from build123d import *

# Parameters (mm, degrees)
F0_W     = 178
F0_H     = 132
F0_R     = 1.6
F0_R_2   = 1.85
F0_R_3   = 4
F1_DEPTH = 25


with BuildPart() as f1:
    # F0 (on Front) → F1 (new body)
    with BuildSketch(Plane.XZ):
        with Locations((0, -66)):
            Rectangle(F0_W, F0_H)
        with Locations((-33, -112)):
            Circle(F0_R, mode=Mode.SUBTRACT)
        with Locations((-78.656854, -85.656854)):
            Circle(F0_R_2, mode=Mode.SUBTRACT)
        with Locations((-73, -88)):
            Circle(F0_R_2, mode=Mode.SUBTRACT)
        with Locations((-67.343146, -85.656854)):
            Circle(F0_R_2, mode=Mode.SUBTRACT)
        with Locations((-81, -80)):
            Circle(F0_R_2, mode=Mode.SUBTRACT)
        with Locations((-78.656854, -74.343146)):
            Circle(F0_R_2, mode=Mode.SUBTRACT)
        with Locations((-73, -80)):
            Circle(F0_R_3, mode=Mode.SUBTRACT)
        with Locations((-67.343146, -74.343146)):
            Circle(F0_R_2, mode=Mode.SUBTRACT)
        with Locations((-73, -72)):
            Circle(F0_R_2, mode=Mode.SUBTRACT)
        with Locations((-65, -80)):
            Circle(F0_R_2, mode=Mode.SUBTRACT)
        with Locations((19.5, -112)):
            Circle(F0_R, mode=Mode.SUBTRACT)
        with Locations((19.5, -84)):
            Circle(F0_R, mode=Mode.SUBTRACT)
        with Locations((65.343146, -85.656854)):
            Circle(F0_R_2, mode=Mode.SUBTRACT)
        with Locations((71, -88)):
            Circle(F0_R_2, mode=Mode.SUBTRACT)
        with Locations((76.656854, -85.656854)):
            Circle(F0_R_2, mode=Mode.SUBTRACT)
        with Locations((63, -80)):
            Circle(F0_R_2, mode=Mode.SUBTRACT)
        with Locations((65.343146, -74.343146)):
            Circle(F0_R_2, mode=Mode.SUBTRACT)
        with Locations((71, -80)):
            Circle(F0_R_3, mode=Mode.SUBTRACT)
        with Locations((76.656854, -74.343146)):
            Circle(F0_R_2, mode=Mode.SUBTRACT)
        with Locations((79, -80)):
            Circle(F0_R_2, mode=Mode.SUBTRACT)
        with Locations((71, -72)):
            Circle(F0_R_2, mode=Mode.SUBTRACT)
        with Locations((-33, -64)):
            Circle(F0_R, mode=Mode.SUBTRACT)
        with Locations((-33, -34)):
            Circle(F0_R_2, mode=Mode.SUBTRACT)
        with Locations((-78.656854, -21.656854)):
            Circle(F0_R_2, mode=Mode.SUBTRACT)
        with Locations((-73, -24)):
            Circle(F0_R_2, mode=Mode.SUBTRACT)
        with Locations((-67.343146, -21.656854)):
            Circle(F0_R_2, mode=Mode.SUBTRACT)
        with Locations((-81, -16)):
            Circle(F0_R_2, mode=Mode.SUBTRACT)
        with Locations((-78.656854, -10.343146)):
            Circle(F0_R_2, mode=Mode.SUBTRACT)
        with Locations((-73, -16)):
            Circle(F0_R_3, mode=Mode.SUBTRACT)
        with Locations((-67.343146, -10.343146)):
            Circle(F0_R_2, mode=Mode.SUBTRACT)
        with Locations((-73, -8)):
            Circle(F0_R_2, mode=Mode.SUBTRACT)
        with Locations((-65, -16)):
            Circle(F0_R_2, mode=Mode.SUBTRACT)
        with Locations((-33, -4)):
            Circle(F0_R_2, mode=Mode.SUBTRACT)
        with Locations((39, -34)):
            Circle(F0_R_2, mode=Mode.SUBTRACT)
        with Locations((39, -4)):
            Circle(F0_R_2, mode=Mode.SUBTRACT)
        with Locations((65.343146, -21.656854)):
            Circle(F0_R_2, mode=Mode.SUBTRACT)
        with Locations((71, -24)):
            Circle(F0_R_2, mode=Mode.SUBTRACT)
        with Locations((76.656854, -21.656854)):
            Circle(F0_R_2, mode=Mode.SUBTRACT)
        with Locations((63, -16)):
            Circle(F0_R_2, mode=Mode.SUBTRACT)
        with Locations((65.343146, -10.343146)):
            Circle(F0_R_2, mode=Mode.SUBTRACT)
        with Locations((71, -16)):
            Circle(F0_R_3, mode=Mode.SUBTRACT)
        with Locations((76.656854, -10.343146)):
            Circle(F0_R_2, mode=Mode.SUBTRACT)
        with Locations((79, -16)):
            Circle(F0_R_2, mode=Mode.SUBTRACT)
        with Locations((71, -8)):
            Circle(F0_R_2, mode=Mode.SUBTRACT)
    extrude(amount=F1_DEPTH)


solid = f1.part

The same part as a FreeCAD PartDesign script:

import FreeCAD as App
import Part
import Sketcher
from FreeCAD import Vector
Q = App.Units.Quantity


def add_polygon(sketch, points):
    """Adds a closed chain of lines whose ends are joined by coincident constraints."""
    first, n = sketch.GeometryCount, len(points)
    for a, b in zip(points, points[1:] + points[:1]):
        sketch.addGeometry(Part.LineSegment(App.Vector(*a, 0), App.Vector(*b, 0)), False)
    for i in range(n):
        sketch.addConstraint(Sketcher.Constraint("Coincident", first + i, 2, first + (i + 1) % n, 1))

doc = App.newDocument("Part")
body = doc.addObject("PartDesign::Body", "Body")

# Sketch on XZ plane
sketch1 = doc.addObject("Sketcher::SketchObject", "Sketch")
body.addObject(sketch1)
sketch1.AttachmentSupport = (doc.XZ_Plane, [""])
sketch1.MapMode = "FlatFace"
add_polygon(sketch1, [(-89, 0), (-89, -132), (89, -132), (89, 0)])  # lines 0-3
sketch1.addGeometry(Part.Circle(Vector(-73, -88, 0), Vector(0, 0, 1), 1.9), False)  # 4
sketch1.addGeometry(Part.Circle(Vector(-33, -112, 0), Vector(0, 0, 1), 1.6), False)  # 5
sketch1.addGeometry(Part.Circle(Vector(-78.7, -85.7, 0), Vector(0, 0, 1), 1.9), False)  # 6
sketch1.addGeometry(Part.Circle(Vector(-81, -80, 0), Vector(0, 0, 1), 1.9), False)  # 7
sketch1.addGeometry(Part.Circle(Vector(-73, -80, 0), Vector(0, 0, 1), 4), False)  # 8
sketch1.addGeometry(Part.Circle(Vector(-67.3, -85.7, 0), Vector(0, 0, 1), 1.9), False)  # 9
sketch1.addGeometry(Part.Circle(Vector(-65, -80, 0), Vector(0, 0, 1), 1.9), False)  # 10
sketch1.addGeometry(Part.Circle(Vector(-78.7, -74.3, 0), Vector(0, 0, 1), 1.9), False)  # 11
sketch1.addGeometry(Part.Circle(Vector(-73, -72, 0), Vector(0, 0, 1), 1.9), False)  # 12
sketch1.addGeometry(Part.Circle(Vector(-67.3, -74.3, 0), Vector(0, 0, 1), 1.9), False)  # 13
sketch1.addGeometry(Part.Circle(Vector(-33, -64, 0), Vector(0, 0, 1), 1.6), False)  # 14
sketch1.addGeometry(Part.Circle(Vector(19.5, -112, 0), Vector(0, 0, 1), 1.6), False)  # 15
sketch1.addGeometry(Part.Circle(Vector(71, -88, 0), Vector(0, 0, 1), 1.9), False)  # 16
sketch1.addGeometry(Part.Circle(Vector(19.5, -84, 0), Vector(0, 0, 1), 1.6), False)  # 17
sketch1.addGeometry(Part.Circle(Vector(65.3, -85.7, 0), Vector(0, 0, 1), 1.9), False)  # 18
sketch1.addGeometry(Part.Circle(Vector(63, -80, 0), Vector(0, 0, 1), 1.9), False)  # 19
sketch1.addGeometry(Part.Circle(Vector(76.7, -85.7, 0), Vector(0, 0, 1), 1.9), False)  # 20
sketch1.addGeometry(Part.Circle(Vector(71, -80, 0), Vector(0, 0, 1), 4), False)  # 21
sketch1.addGeometry(Part.Circle(Vector(79, -80, 0), Vector(0, 0, 1), 1.9), False)  # 22
sketch1.addGeometry(Part.Circle(Vector(65.3, -74.3, 0), Vector(0, 0, 1), 1.9), False)  # 23
sketch1.addGeometry(Part.Circle(Vector(71, -72, 0), Vector(0, 0, 1), 1.9), False)  # 24
sketch1.addGeometry(Part.Circle(Vector(76.7, -74.3, 0), Vector(0, 0, 1), 1.9), False)  # 25
sketch1.addGeometry(Part.Circle(Vector(-33, -34, 0), Vector(0, 0, 1), 1.9), False)  # 26
sketch1.addGeometry(Part.Circle(Vector(-73, -24, 0), Vector(0, 0, 1), 1.9), False)  # 27
sketch1.addGeometry(Part.Circle(Vector(-78.7, -21.7, 0), Vector(0, 0, 1), 1.9), False)  # 28
sketch1.addGeometry(Part.Circle(Vector(-67.3, -21.7, 0), Vector(0, 0, 1), 1.9), False)  # 29
sketch1.addGeometry(Part.Circle(Vector(-81, -16, 0), Vector(0, 0, 1), 1.9), False)  # 30
sketch1.addGeometry(Part.Circle(Vector(-73, -16, 0), Vector(0, 0, 1), 4), False)  # 31
sketch1.addGeometry(Part.Circle(Vector(-78.7, -10.3, 0), Vector(0, 0, 1), 1.9), False)  # 32
sketch1.addGeometry(Part.Circle(Vector(-65, -16, 0), Vector(0, 0, 1), 1.9), False)  # 33
sketch1.addGeometry(Part.Circle(Vector(-67.3, -10.3, 0), Vector(0, 0, 1), 1.9), False)  # 34
sketch1.addGeometry(Part.Circle(Vector(-73, -8, 0), Vector(0, 0, 1), 1.9), False)  # 35
sketch1.addGeometry(Part.Circle(Vector(-33, -4, 0), Vector(0, 0, 1), 1.9), False)  # 36
sketch1.addGeometry(Part.Circle(Vector(39, -34, 0), Vector(0, 0, 1), 1.9), False)  # 37
sketch1.addGeometry(Part.Circle(Vector(39, -4, 0), Vector(0, 0, 1), 1.9), False)  # 38
sketch1.addGeometry(Part.Circle(Vector(71, -24, 0), Vector(0, 0, 1), 1.9), False)  # 39
sketch1.addGeometry(Part.Circle(Vector(65.3, -21.7, 0), Vector(0, 0, 1), 1.9), False)  # 40
sketch1.addGeometry(Part.Circle(Vector(76.7, -21.7, 0), Vector(0, 0, 1), 1.9), False)  # 41
sketch1.addGeometry(Part.Circle(Vector(63, -16, 0), Vector(0, 0, 1), 1.9), False)  # 42
sketch1.addGeometry(Part.Circle(Vector(65.3, -10.3, 0), Vector(0, 0, 1), 1.9), False)  # 43
sketch1.addGeometry(Part.Circle(Vector(71, -16, 0), Vector(0, 0, 1), 4), False)  # 44
sketch1.addGeometry(Part.Circle(Vector(79, -16, 0), Vector(0, 0, 1), 1.9), False)  # 45
sketch1.addGeometry(Part.Circle(Vector(76.7, -10.3, 0), Vector(0, 0, 1), 1.9), False)  # 46
sketch1.addGeometry(Part.Circle(Vector(71, -8, 0), Vector(0, 0, 1), 1.9), False)  # 47
sketch1.addConstraint([
    Sketcher.Constraint("Vertical", 0),
    Sketcher.Constraint("Horizontal", 1),
    Sketcher.Constraint("Vertical", 2),
    Sketcher.Constraint("Horizontal", 3),
    Sketcher.Constraint("Equal", 4, 6),
    Sketcher.Constraint("Equal", 6, 7),
    Sketcher.Constraint("Equal", 7, 9),
    Sketcher.Constraint("Equal", 9, 10),
    Sketcher.Constraint("Equal", 10, 11),
    Sketcher.Constraint("Equal", 11, 12),
    Sketcher.Constraint("Equal", 12, 13),
    Sketcher.Constraint("Equal", 5, 14),
    Sketcher.Constraint("Equal", 14, 15),
    Sketcher.Constraint("Equal", 13, 16),
    Sketcher.Constraint("Equal", 15, 17),
    Sketcher.Constraint("Equal", 16, 18),
    Sketcher.Constraint("Equal", 18, 19),
    Sketcher.Constraint("Equal", 19, 20),
    Sketcher.Constraint("Equal", 8, 21),
    Sketcher.Constraint("Equal", 20, 22),
    Sketcher.Constraint("Equal", 22, 23),
    Sketcher.Constraint("Equal", 23, 24),
    Sketcher.Constraint("Equal", 24, 25),
    Sketcher.Constraint("Equal", 25, 26),
    Sketcher.Constraint("Equal", 26, 27),
    Sketcher.Constraint("Equal", 27, 28),
    Sketcher.Constraint("Equal", 28, 29),
    Sketcher.Constraint("Equal", 29, 30),
    Sketcher.Constraint("Equal", 21, 31),
    Sketcher.Constraint("Equal", 30, 32),
    Sketcher.Constraint("Equal", 32, 33),
    Sketcher.Constraint("Equal", 33, 34),
    Sketcher.Constraint("Equal", 34, 35),
    Sketcher.Constraint("Equal", 35, 36),
    Sketcher.Constraint("Equal", 36, 37),
    Sketcher.Constraint("Equal", 37, 38),
    Sketcher.Constraint("Equal", 38, 39),
    Sketcher.Constraint("Equal", 39, 40),
    Sketcher.Constraint("Equal", 40, 41),
    Sketcher.Constraint("Equal", 41, 42),
    Sketcher.Constraint("Equal", 42, 43),
    Sketcher.Constraint("Equal", 31, 44),
    Sketcher.Constraint("Equal", 43, 45),
    Sketcher.Constraint("Equal", 45, 46),
    Sketcher.Constraint("Equal", 46, 47),
    Sketcher.Constraint("Symmetric", 2, 2, 3, 2, -1, 1),
    Sketcher.Constraint("Horizontal", 7, 3, 8, 3),
    Sketcher.Constraint("Horizontal", 6, 3, 9, 3),
    Sketcher.Constraint("Horizontal", 8, 3, 10, 3),
    Sketcher.Constraint("Horizontal", 11, 3, 13, 3),
    Sketcher.Constraint("Horizontal", 5, 3, 15, 3),
    Sketcher.Constraint("Horizontal", 4, 3, 16, 3),
    Sketcher.Constraint("Horizontal", 9, 3, 18, 3),
    Sketcher.Constraint("Horizontal", 10, 3, 19, 3),
    Sketcher.Constraint("Horizontal", 18, 3, 20, 3),
    Sketcher.Constraint("Horizontal", 19, 3, 21, 3),
    Sketcher.Constraint("Horizontal", 21, 3, 22, 3),
    Sketcher.Constraint("Horizontal", 13, 3, 23, 3),
    Sketcher.Constraint("Horizontal", 12, 3, 24, 3),
    Sketcher.Constraint("Horizontal", 23, 3, 25, 3),
    Sketcher.Constraint("Horizontal", 28, 3, 29, 3),
    Sketcher.Constraint("Horizontal", 30, 3, 31, 3),
    Sketcher.Constraint("Horizontal", 31, 3, 33, 3),
    Sketcher.Constraint("Horizontal", 32, 3, 34, 3),
    Sketcher.Constraint("Horizontal", 26, 3, 37, 3),
    Sketcher.Constraint("Horizontal", 36, 3, 38, 3),
    Sketcher.Constraint("Horizontal", 27, 3, 39, 3),
    Sketcher.Constraint("Horizontal", 29, 3, 40, 3),
    Sketcher.Constraint("Horizontal", 40, 3, 41, 3),
    Sketcher.Constraint("Horizontal", 33, 3, 42, 3),
    Sketcher.Constraint("Horizontal", 34, 3, 43, 3),
    Sketcher.Constraint("Horizontal", 42, 3, 44, 3),
    Sketcher.Constraint("Horizontal", 44, 3, 45, 3),
    Sketcher.Constraint("Horizontal", 43, 3, 46, 3),
    Sketcher.Constraint("Horizontal", 35, 3, 47, 3),
    Sketcher.Constraint("Vertical", 4, 3, 8, 3),
    Sketcher.Constraint("Vertical", 6, 3, 11, 3),
    Sketcher.Constraint("Vertical", 8, 3, 12, 3),
    Sketcher.Constraint("Vertical", 9, 3, 13, 3),
    Sketcher.Constraint("Vertical", 5, 3, 14, 3),
    Sketcher.Constraint("Vertical", 15, 3, 17, 3),
    Sketcher.Constraint("Vertical", 16, 3, 21, 3),
    Sketcher.Constraint("Vertical", 18, 3, 23, 3),
    Sketcher.Constraint("Vertical", 21, 3, 24, 3),
    Sketcher.Constraint("Vertical", 20, 3, 25, 3),
    Sketcher.Constraint("Vertical", 14, 3, 26, 3),
    Sketcher.Constraint("Vertical", 12, 3, 27, 3),
    Sketcher.Constraint("Vertical", 11, 3, 28, 3),
    Sketcher.Constraint("Vertical", 13, 3, 29, 3),
    Sketcher.Constraint("Vertical", 7, 3, 30, 3),
    Sketcher.Constraint("Vertical", 27, 3, 31, 3),
    Sketcher.Constraint("Vertical", 28, 3, 32, 3),
    Sketcher.Constraint("Vertical", 10, 3, 33, 3),
    Sketcher.Constraint("Vertical", 29, 3, 34, 3),
    Sketcher.Constraint("Vertical", 31, 3, 35, 3),
    Sketcher.Constraint("Vertical", 26, 3, 36, 3),
    Sketcher.Constraint("Vertical", 37, 3, 38, 3),
    Sketcher.Constraint("Vertical", 24, 3, 39, 3),
    Sketcher.Constraint("Vertical", 23, 3, 40, 3),
    Sketcher.Constraint("Vertical", 25, 3, 41, 3),
    Sketcher.Constraint("Vertical", 19, 3, 42, 3),
    Sketcher.Constraint("Vertical", 40, 3, 43, 3),
    Sketcher.Constraint("Vertical", 39, 3, 44, 3),
    Sketcher.Constraint("Vertical", 22, 3, 45, 3),
    Sketcher.Constraint("Vertical", 41, 3, 46, 3),
    Sketcher.Constraint("Vertical", 44, 3, 47, 3),
    Sketcher.Constraint("Diameter", 8, Q("8 mm")),
    Sketcher.Constraint("Diameter", 4, Q("3.7 mm")),
    Sketcher.Constraint("Diameter", 5, Q("3.2 mm")),
    Sketcher.Constraint("DistanceX", 1, 1, 1, 2, Q("178 mm")),
    Sketcher.Constraint("DistanceY", 0, 2, 0, 1, Q("132 mm")),
    Sketcher.Constraint("DistanceX", 4, 3, -1, 1, Q("73 mm")),
    Sketcher.Constraint("DistanceY", 4, 3, -1, 1, Q("88 mm")),
    Sketcher.Constraint("DistanceX", 5, 3, -1, 1, Q("33 mm")),
    Sketcher.Constraint("DistanceY", 5, 3, -1, 1, Q("112 mm")),
    Sketcher.Constraint("DistanceX", 7, 3, -1, 1, Q("81 mm")),
    Sketcher.Constraint("DistanceY", 7, 3, -1, 1, Q("80 mm")),
    Sketcher.Constraint("DistanceX", 10, 3, -1, 1, Q("65 mm")),
    Sketcher.Constraint("DistanceY", 12, 3, -1, 1, Q("72 mm")),
    Sketcher.Constraint("DistanceY", 14, 3, -1, 1, Q("64 mm")),
    Sketcher.Constraint("DistanceX", -1, 1, 16, 3, Q("71 mm")),
    Sketcher.Constraint("DistanceY", 17, 3, -1, 1, Q("84 mm")),
    Sketcher.Constraint("DistanceX", -1, 1, 19, 3, Q("63 mm")),
    Sketcher.Constraint("DistanceX", -1, 1, 22, 3, Q("79 mm")),
    Sketcher.Constraint("DistanceY", 26, 3, -1, 1, Q("34 mm")),
    Sketcher.Constraint("DistanceY", 27, 3, -1, 1, Q("24 mm")),
    Sketcher.Constraint("DistanceY", 30, 3, -1, 1, Q("16 mm")),
    Sketcher.Constraint("DistanceY", 35, 3, -1, 1, Q("8 mm")),
    Sketcher.Constraint("DistanceY", 36, 3, -1, 1, Q("4 mm")),
    Sketcher.Constraint("DistanceX", -1, 1, 37, 3, Q("39 mm")),
    Sketcher.Constraint("DistanceX", -1, 1, 15, 3, Q("19.5 mm")),
    Sketcher.Constraint("DistanceX", 6, 3, -1, 1, Q("78.656854 mm")),
    Sketcher.Constraint("DistanceY", 6, 3, -1, 1, Q("85.656854 mm")),
    Sketcher.Constraint("DistanceX", 9, 3, -1, 1, Q("67.343146 mm")),
    Sketcher.Constraint("DistanceY", 11, 3, -1, 1, Q("74.343146 mm")),
    Sketcher.Constraint("DistanceX", -1, 1, 18, 3, Q("65.343146 mm")),
    Sketcher.Constraint("DistanceX", -1, 1, 20, 3, Q("76.656854 mm")),
    Sketcher.Constraint("DistanceY", 28, 3, -1, 1, Q("21.656854 mm")),
    Sketcher.Constraint("DistanceY", 32, 3, -1, 1, Q("10.343146 mm")),
])
pad1 = doc.addObject("PartDesign::Pad", "Pad")
body.addObject(pad1)
pad1.Profile = sketch1
pad1.Length = 25

doc.recompute()
